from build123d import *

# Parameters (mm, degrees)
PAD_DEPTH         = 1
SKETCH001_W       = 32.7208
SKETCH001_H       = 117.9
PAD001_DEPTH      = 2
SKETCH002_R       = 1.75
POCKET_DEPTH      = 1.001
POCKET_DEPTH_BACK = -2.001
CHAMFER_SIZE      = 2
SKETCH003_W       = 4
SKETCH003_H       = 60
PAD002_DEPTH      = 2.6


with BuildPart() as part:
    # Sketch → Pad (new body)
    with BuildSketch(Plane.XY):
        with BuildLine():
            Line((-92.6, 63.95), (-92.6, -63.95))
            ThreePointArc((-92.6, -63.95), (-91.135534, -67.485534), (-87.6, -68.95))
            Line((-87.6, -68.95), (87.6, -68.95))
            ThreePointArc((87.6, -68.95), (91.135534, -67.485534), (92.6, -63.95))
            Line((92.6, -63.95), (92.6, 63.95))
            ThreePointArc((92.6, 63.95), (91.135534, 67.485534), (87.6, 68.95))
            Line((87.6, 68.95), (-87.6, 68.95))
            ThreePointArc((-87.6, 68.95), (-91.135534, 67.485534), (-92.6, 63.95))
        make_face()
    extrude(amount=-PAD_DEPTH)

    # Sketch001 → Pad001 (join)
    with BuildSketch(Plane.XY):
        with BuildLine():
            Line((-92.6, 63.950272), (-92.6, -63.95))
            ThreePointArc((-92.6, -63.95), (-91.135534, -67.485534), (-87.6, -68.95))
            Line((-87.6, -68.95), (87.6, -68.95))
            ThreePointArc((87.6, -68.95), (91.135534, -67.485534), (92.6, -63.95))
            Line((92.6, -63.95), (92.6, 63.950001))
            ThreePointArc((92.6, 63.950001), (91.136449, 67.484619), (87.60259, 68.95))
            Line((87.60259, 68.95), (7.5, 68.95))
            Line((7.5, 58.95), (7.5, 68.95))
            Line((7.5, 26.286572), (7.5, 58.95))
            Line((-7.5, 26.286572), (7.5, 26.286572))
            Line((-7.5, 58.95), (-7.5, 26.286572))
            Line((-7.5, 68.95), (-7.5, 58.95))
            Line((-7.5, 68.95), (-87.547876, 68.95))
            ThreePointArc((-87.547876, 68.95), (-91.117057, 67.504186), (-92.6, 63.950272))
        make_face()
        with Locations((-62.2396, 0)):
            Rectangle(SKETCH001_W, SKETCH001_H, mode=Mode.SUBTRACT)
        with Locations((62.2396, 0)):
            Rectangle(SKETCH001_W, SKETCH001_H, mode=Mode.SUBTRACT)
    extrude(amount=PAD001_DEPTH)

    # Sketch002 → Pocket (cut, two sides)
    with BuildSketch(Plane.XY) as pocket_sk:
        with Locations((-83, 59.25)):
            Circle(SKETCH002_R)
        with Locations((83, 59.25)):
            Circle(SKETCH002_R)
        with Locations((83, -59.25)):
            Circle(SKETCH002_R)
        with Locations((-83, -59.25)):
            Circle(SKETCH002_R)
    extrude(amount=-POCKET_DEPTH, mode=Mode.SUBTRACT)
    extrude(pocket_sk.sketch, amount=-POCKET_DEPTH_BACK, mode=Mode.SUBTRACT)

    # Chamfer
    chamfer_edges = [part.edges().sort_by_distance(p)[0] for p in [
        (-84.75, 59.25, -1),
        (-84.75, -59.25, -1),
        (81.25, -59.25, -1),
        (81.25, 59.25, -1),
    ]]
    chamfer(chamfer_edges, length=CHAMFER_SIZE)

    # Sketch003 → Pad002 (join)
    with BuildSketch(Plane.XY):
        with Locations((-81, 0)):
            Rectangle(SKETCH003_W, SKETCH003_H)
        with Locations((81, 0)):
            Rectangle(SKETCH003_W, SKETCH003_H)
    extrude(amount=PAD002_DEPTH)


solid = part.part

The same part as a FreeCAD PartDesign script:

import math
import FreeCAD as App
import Part
import Sketcher
from FreeCAD import Vector
Q = App.Units.Quantity


def edges_at(feature, points):
    """Names of the edges that pass closest to the given points."""
    edges = feature.Shape.Edges
    near = lambda p: min(range(len(edges)), key=lambda i: edges[i].distToShape(Part.Vertex(*p))[0])
    return sorted({f"Edge{near(p) + 1}" for p in points})

doc = App.newDocument("Part")
body = doc.addObject("PartDesign::Body", "Body")

# Sketch on XY plane
sketch1 = doc.addObject("Sketcher::SketchObject", "Sketch")
body.addObject(sketch1)
sketch1.AttachmentSupport = (doc.XY_Plane, [""])
sketch1.MapMode = "FlatFace"
sketch1.addGeometry([
    Part.LineSegment(Vector(-92.6, 64, 0), Vector(-92.6, -64, 0)),  # 0
    Part.ArcOfCircle(Part.Circle(Vector(-87.6, -64, 0), Vector(0, 0, 1), 5), math.radians(180), math.radians(270)),  # 1
    Part.LineSegment(Vector(-87.6, -69, 0), Vector(87.6, -69, 0)),  # 2
    Part.ArcOfCircle(Part.Circle(Vector(87.6, -64, 0), Vector(0, 0, 1), 5), math.radians(-90), math.radians(0)),  # 3
    Part.LineSegment(Vector(92.6, -64, 0), Vector(92.6, 64, 0)),  # 4
    Part.ArcOfCircle(Part.Circle(Vector(87.6, 64, 0), Vector(0, 0, 1), 5), math.radians(0), math.radians(90)),  # 5
    Part.LineSegment(Vector(87.6, 69, 0), Vector(-87.6, 69, 0)),  # 6
    Part.ArcOfCircle(Part.Circle(Vector(-87.6, 64, 0), Vector(0, 0, 1), 5), math.radians(90), math.radians(180)),  # 7
], False)
sketch1.addConstraint([
    Sketcher.Constraint("Tangent", 0, 2, 1, 1),
    Sketcher.Constraint("Tangent", 1, 2, 2, 1),
    Sketcher.Constraint("Tangent", 2, 2, 3, 1),
    Sketcher.Constraint("Tangent", 3, 2, 4, 1),
    Sketcher.Constraint("Tangent", 4, 2, 5, 1),
    Sketcher.Constraint("Tangent", 5, 2, 6, 1),
    Sketcher.Constraint("Tangent", 6, 2, 7, 1),
    Sketcher.Constraint("Tangent", 7, 2, 0, 1),
    Sketcher.Constraint("Vertical", 0),
    Sketcher.Constraint("Horizontal", 2),
    Sketcher.Constraint("Vertical", 4),
    Sketcher.Constraint("Horizontal", 6),
    Sketcher.Constraint("Equal", 1, 3),
    Sketcher.Constraint("Equal", 3, 5),
    Sketcher.Constraint("Equal", 5, 7),
    Sketcher.Constraint("Symmetric", 1, 3, 5, 3, -1, 1),
    Sketcher.Constraint("Radius", 1, Q("5 mm")),
    Sketcher.Constraint("DistanceX", 2, 1, 2, 2, Q("175.2 mm")),
    Sketcher.Constraint("DistanceY", 0, 2, 0, 1, Q("127.9 mm")),
])
pad1 = doc.addObject("PartDesign::Pad", "Pad")
body.addObject(pad1)
pad1.Profile = sketch1
pad1.Length = 1
pad1.Reversed = True

# Sketch on XY plane
sketch2 = doc.addObject("Sketcher::SketchObject", "Sketch001")
body.addObject(sketch2)
sketch2.AttachmentSupport = (doc.XY_Plane, [""])
sketch2.MapMode = "FlatFace"
sketch2.addGeometry([
    Part.LineSegment(Vector(-92.6, 64, 0), Vector(-92.6, -64, 0)),  # 0
    Part.ArcOfCircle(Part.Circle(Vector(-87.6, -64, 0), Vector(0, 0, 1), 5), math.radians(180), math.radians(270)),  # 1
    Part.LineSegment(Vector(-87.6, -69, 0), Vector(87.6, -69, 0)),  # 2
    Part.ArcOfCircle(Part.Circle(Vector(87.6, -64, 0), Vector(0, 0, 1), 5), math.radians(-90), math.radians(0)),  # 3
    Part.LineSegment(Vector(92.6, -64, 0), Vector(92.6, 64, 0)),  # 4
    Part.ArcOfCircle(Part.Circle(Vector(87.6, 64, 0), Vector(0, 0, 1), 5), math.radians(0), math.radians(90)),  # 5
    Part.LineSegment(Vector(87.6, 69, 0), Vector(7.5, 69, 0)),  # 6
    Part.LineSegment(Vector(7.5, 69, 0), Vector(7.5, 26.3, 0)),  # 7
    Part.LineSegment(Vector(7.5, 26.3, 0), Vector(-7.5, 26.3, 0)),  # 8
    Part.LineSegment(Vector(-7.5, 26.3, 0), Vector(-7.5, 69, 0)),  # 9
    Part.LineSegment(Vector(-7.5, 69, 0), Vector(-87.5, 69, 0)),  # 10
    Part.ArcOfCircle(Part.Circle(Vector(-87.6, 64, 0), Vector(0, 0, 1), 5), math.radians(89), math.radians(180)),  # 11
    Part.LineSegment(Vector(-45.9, -59, 0), Vector(-78.6, -59, 0)),  # 12
    Part.LineSegment(Vector(-78.6, -59, 0), Vector(-78.6, 59, 0)),  # 13
    Part.LineSegment(Vector(-78.6, 59, 0), Vector(-45.9, 59, 0)),  # 14
    Part.LineSegment(Vector(-45.9, 59, 0), Vector(-45.9, -59, 0)),  # 15
    Part.LineSegment(Vector(78.6, -59, 0), Vector(45.9, -59, 0)),  # 16
    Part.LineSegment(Vector(45.9, -59, 0), Vector(45.9, 59, 0)),  # 17
    Part.LineSegment(Vector(45.9, 59, 0), Vector(78.6, 59, 0)),  # 18
    Part.LineSegment(Vector(78.6, 59, 0), Vector(78.6, -59, 0)),  # 19
], False)
sketch2.addConstraint([
    Sketcher.Constraint("Tangent", 0, 2, 1, 1),
    Sketcher.Constraint("Tangent", 1, 2, 2, 1),
    Sketcher.Constraint("Tangent", 2, 2, 3, 1),
    Sketcher.Constraint("Tangent", 3, 2, 4, 1),
    Sketcher.Constraint("Tangent", 4, 2, 5, 1),
    Sketcher.Constraint("Coincident", 5, 2, 6, 1),
    Sketcher.Constraint("Coincident", 6, 2, 7, 1),
    Sketcher.Constraint("Coincident", 7, 2, 8, 1),
    Sketcher.Constraint("Coincident", 8, 2, 9, 1),
    Sketcher.Constraint("Coincident", 9, 2, 10, 1),
    Sketcher.Constraint("Coincident", 10, 2, 11, 1),
    Sketcher.Constraint("Tangent", 11, 2, 0, 1),
    Sketcher.Constraint("Coincident", 12, 2, 13, 1),
    Sketcher.Constraint("Coincident", 13, 2, 14, 1),
    Sketcher.Constraint("Coincident", 14, 2, 15, 1),
    Sketcher.Constraint("Coincident", 15, 2, 12, 1),
    Sketcher.Constraint("Coincident", 16, 2, 17, 1),
    Sketcher.Constraint("Coincident", 17, 2, 18, 1),
    Sketcher.Constraint("Coincident", 18, 2, 19, 1),
    Sketcher.Constraint("Coincident", 19, 2, 16, 1),
    Sketcher.Constraint("Vertical", 0),
    Sketcher.Constraint("Horizontal", 2),
    Sketcher.Constraint("Vertical", 4),
    Sketcher.Constraint("Horizontal", 6),
    Sketcher.Constraint("Vertical", 7),
    Sketcher.Constraint("Horizontal", 8),
    Sketcher.Constraint("Vertical", 9),
    Sketcher.Constraint("Horizontal", 10),
    Sketcher.Constraint("Horizontal", 12),
    Sketcher.Constraint("Vertical", 13),
    Sketcher.Constraint("Horizontal", 14),
    Sketcher.Constraint("Vertical", 15),
    Sketcher.Constraint("Horizontal", 16),
    Sketcher.Constraint("Vertical", 17),
    Sketcher.Constraint("Horizontal", 18),
    Sketcher.Constraint("Vertical", 19),
    Sketcher.Constraint("Equal", 1, 3),
    Sketcher.Constraint("Equal", 3, 5),
    Sketcher.Constraint("Equal", 5, 11),
    Sketcher.Constraint("Symmetric", 1, 3, 5, 3, -1, 1),
    Sketcher.Constraint("Symmetric", 14, 2, 16, 2, -1, 1),
    Sketcher.Constraint("Symmetric", 12, 2, 18, 2, -1, 1),
    Sketcher.Constraint("Symmetric", 6, 2, 9, 2, -2),
    Sketcher.Constraint("Horizontal", 15, 2, 16, 2),
    Sketcher.Constraint("Radius", 1, Q("5 mm")),
    Sketcher.Constraint("DistanceX", 8, 2, 8, 1, Q("15 mm")),
    Sketcher.Constraint("DistanceX", 2, 1, 2, 2, Q("175.2 mm")),
    Sketcher.Constraint("DistanceY", 4, 1, 4, 2, Q("127.900001 mm")),
    Sketcher.Constraint("DistanceY", 13, 1, 13, 2, Q("117.9 mm")),
    Sketcher.Constraint("DistanceX", 1, 3, 12, 2, Q("9 mm")),
    Sketcher.Constraint("DistanceX", 12, 2, 12, 1, Q("32.7208 mm")),
    Sketcher.Constraint("DistanceX", 6, 2, 6, 1, Q("80.10259 mm")),
    Sketcher.Constraint("DistanceY", 0, 2, 0, 1, Q("127.900272 mm")),
    Sketcher.Constraint("DistanceY", 7, 2, 7, 1, Q("42.663428 mm")),
])
pad2 = doc.addObject("PartDesign::Pad", "Pad001")
body.addObject(pad2)
pad2.Profile = sketch2
pad2.Length = 2

# Sketch on XY plane
sketch3 = doc.addObject("Sketcher::SketchObject", "Sketch002")
body.addObject(sketch3)
sketch3.AttachmentSupport = (doc.XY_Plane, [""])
sketch3.MapMode = "FlatFace"
sketch3.addGeometry([
    Part.Circle(Vector(-83, 59.2, 0), Vector(0, 0, 1), 1.8),
    Part.Circle(Vector(83, 59.2, 0), Vector(0, 0, 1), 1.8),
    Part.Circle(Vector(83, -59.2, 0), Vector(0, 0, 1), 1.8),
    Part.Circle(Vector(-83, -59.2, 0), Vector(0, 0, 1), 1.8),
], False)
sketch3.addConstraint([
    Sketcher.Constraint("Equal", 0, 1),
    Sketcher.Constraint("Equal", 1, 2),
    Sketcher.Constraint("Equal", 2, 3),
    Sketcher.Constraint("Symmetric", 0, 3, 2, 3, -1, 1),
    Sketcher.Constraint("Symmetric", 1, 3, 3, 3, -1, 1),
    Sketcher.Constraint("Symmetric", 0, 3, 1, 3, -2),
    Sketcher.Constraint("Diameter", 0, Q("3.5 mm")),
    Sketcher.Constraint("DistanceX", 0, 3, -1, 1, Q("83 mm")),
    Sketcher.Constraint("DistanceY", 2, 3, 1, 3, Q("118.5 mm")),
])
pocket1 = doc.addObject("PartDesign::Pocket", "Pocket")
body.addObject(pocket1)
pocket1.Profile = sketch3
pocket1.Type = "ThroughAll"
pocket1.Midplane = True
doc.recompute()

chamfer = doc.addObject("PartDesign::Chamfer", "Chamfer")
body.addObject(chamfer)
chamfer.Base = (pocket1, edges_at(pocket1, [
    (-84.75, 59.25, -1),
    (-84.75, -59.25, -1),
    (81.25, -59.25, -1),
    (81.25, 59.25, -1),
]))
chamfer.Size = 2

# Sketch on XY plane
sketch4 = doc.addObject("Sketcher::SketchObject", "Sketch003")
body.addObject(sketch4)
sketch4.AttachmentSupport = (doc.XY_Plane, [""])
sketch4.MapMode = "FlatFace"
sketch4.addGeometry([
    Part.LineSegment(Vector(-83, 30, 0), Vector(-83, -30, 0)),  # 0
    Part.LineSegment(Vector(-83, -30, 0), Vector(-79, -30, 0)),  # 1
    Part.LineSegment(Vector(-79, -30, 0), Vector(-79, 30, 0)),  # 2
    Part.LineSegment(Vector(-79, 30, 0), Vector(-83, 30, 0)),  # 3
    Part.LineSegment(Vector(79, 30, 0), Vector(79, -30, 0)),  # 4
    Part.LineSegment(Vector(79, -30, 0), Vector(83, -30, 0)),  # 5
    Part.LineSegment(Vector(83, -30, 0), Vector(83, 30, 0)),  # 6
    Part.LineSegment(Vector(83, 30, 0), Vector(79, 30, 0)),  # 7
], False)
sketch4.addConstraint([
    Sketcher.Constraint("Coincident", 0, 2, 1, 1),
    Sketcher.Constraint("Coincident", 1, 2, 2, 1),
    Sketcher.Constraint("Coincident", 2, 2, 3, 1),
    Sketcher.Constraint("Coincident", 3, 2, 0, 1),
    Sketcher.Constraint("Coincident", 4, 2, 5, 1),
    Sketcher.Constraint("Coincident", 5, 2, 6, 1),
    Sketcher.Constraint("Coincident", 6, 2, 7, 1),
    Sketcher.Constraint("Coincident", 7, 2, 4, 1),
    Sketcher.Constraint("Vertical", 0),
    Sketcher.Constraint("Horizontal", 1),
    Sketcher.Constraint("Vertical", 2),
    Sketcher.Constraint("Horizontal", 3),
    Sketcher.Constraint("Vertical", 4),
    Sketcher.Constraint("Horizontal", 5),
    Sketcher.Constraint("Vertical", 6),
    Sketcher.Constraint("Horizontal", 7),
    Sketcher.Constraint("Symmetric", 2, 2, 4, 2, -1, 1),
    Sketcher.Constraint("Symmetric", 0, 2, 6, 2, -1, 1),
    Sketcher.Constraint("Horizontal", 1, 2, 4, 2),
    Sketcher.Constraint("DistanceX", 1, 1, 1, 2, Q("4 mm")),
    Sketcher.Constraint("DistanceY", 0, 2, 0, 1, Q("60 mm")),
    Sketcher.Constraint("DistanceX", 0, 2, -1, 1, Q("83 mm")),
])
pad3 = doc.addObject("PartDesign::Pad", "Pad002")
body.addObject(pad3)
pad3.Profile = sketch4
pad3.Length = 2.6

doc.recompute()
